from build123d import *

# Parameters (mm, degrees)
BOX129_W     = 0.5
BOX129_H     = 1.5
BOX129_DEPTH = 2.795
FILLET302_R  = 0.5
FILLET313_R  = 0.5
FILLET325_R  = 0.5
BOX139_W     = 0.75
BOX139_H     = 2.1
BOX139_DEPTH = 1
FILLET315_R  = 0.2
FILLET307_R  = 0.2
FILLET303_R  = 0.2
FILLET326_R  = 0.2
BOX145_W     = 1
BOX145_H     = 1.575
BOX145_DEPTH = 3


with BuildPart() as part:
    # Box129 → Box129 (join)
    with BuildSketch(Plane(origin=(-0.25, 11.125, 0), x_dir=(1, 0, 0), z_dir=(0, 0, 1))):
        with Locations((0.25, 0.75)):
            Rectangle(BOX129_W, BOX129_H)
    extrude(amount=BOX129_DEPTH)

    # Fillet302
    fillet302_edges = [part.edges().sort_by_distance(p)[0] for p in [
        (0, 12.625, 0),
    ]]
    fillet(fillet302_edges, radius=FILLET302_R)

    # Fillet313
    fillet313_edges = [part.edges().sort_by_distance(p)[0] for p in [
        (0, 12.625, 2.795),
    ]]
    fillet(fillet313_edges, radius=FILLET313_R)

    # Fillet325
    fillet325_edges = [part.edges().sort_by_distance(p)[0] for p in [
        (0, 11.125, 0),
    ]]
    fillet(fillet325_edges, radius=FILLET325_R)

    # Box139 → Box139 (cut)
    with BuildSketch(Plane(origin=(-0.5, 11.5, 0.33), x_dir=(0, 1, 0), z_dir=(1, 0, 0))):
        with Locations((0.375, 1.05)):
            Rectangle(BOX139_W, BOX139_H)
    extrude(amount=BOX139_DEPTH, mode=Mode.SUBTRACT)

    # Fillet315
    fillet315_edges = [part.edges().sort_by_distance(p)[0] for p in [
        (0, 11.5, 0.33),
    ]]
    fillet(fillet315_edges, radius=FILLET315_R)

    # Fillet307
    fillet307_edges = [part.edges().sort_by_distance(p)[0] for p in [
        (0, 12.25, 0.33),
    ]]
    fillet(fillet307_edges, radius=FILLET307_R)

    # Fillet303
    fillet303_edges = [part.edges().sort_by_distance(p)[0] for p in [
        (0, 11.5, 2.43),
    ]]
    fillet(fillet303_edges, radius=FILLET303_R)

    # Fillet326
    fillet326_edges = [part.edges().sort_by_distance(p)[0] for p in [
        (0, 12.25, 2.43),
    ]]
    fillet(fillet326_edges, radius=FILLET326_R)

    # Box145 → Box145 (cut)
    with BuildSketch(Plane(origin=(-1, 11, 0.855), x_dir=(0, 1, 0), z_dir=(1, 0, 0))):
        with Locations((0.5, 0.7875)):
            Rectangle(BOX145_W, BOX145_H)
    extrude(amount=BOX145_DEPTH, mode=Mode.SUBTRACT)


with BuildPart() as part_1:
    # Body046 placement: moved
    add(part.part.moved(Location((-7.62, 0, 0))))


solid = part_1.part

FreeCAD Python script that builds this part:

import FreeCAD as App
import Part
import Sketcher
from FreeCAD import Vector
Q = App.Units.Quantity


def edges_at(feature, points):
    """Names of the edges that pass closest to the given points."""
    edges = feature.Shape.Edges
    near = lambda p: min(range(len(edges)), key=lambda i: edges[i].distToShape(Part.Vertex(*p))[0])
    return sorted({f"Edge{near(p) + 1}" for p in points})

doc = App.newDocument("Part")
body = doc.addObject("PartDesign::Body", "Body")

# Sketch on XY plane
sketch1 = body.newObject("Sketcher::SketchObject", "Sketch")
sketch1.AttachmentSupport = (doc.getObject("XY_Plane"), [""])
sketch1.MapMode = "FlatFace"
sketch1.addGeometry([
    Part.LineSegment(Vector(-0.25, 12.625, 0), Vector(-0.25, 11.125, 0)),
    Part.LineSegment(Vector(-0.25, 11.125, 0), Vector(0.25, 11.125, 0)),
    Part.LineSegment(Vector(0.25, 11.125, 0), Vector(0.25, 12.625, 0)),
    Part.LineSegment(Vector(0.25, 12.625, 0), Vector(-0.25, 12.625, 0)),
], False)
sketch1.addConstraint([
    Sketcher.Constraint("Coincident", 0, 2, 1, 1),
    Sketcher.Constraint("Coincident", 1, 2, 2, 1),
    Sketcher.Constraint("Coincident", 2, 2, 3, 1),
    Sketcher.Constraint("Coincident", 3, 2, 0, 1),
    Sketcher.Constraint("Vertical", 0),
    Sketcher.Constraint("Horizontal", 1),
    Sketcher.Constraint("Vertical", 2),
    Sketcher.Constraint("Horizontal", 3),
    Sketcher.Constraint("DistanceX", 1, 1, 1, 2, Q("0.5 mm")),
    Sketcher.Constraint("DistanceY", 0, 2, 0, 1, Q("1.5 mm")),
    Sketcher.Constraint("DistanceX", 0, 2, -1, 1, Q("0.25 mm")),
    Sketcher.Constraint("DistanceY", -1, 1, 0, 2, Q("11.125 mm")),
])
pad1 = body.newObject("PartDesign::Pad", "Pad")
pad1.Profile = sketch1
pad1.Length = 2.795
doc.recompute()

fillet = body.newObject("PartDesign::Fillet", "Fillet")
fillet.Base = (pad1, edges_at(pad1, [(0, 12.625, 0)]))
fillet.Radius = 0.5
doc.recompute()

fillet2 = body.newObject("PartDesign::Fillet", "Fillet001")
fillet2.Base = (fillet, edges_at(fillet, [(0, 12.625, 2.795)]))
fillet2.Radius = 0.5
doc.recompute()

fillet3 = body.newObject("PartDesign::Fillet", "Fillet002")
fillet3.Base = (fillet2, edges_at(fillet2, [(0, 11.125, 0)]))
fillet3.Radius = 0.5

# Sketch on YZ plane
sketch2 = body.newObject("Sketcher::SketchObject", "Sketch001")
sketch2.AttachmentSupport = (doc.getObject("YZ_Plane"), [""])
sketch2.MapMode = "FlatFace"
sketch2.AttachmentOffset = App.Placement(Vector(0, 0, -0.5), App.Rotation())
sketch2.addGeometry([
    Part.LineSegment(Vector(11.5, 2.43, 0), Vector(11.5, 0.33, 0)),
    Part.LineSegment(Vector(11.5, 0.33, 0), Vector(12.25, 0.33, 0)),
    Part.LineSegment(Vector(12.25, 0.33, 0), Vector(12.25, 2.43, 0)),
    Part.LineSegment(Vector(12.25, 2.43, 0), Vector(11.5, 2.43, 0)),
], False)
sketch2.addConstraint([
    Sketcher.Constraint("Coincident", 0, 2, 1, 1),
    Sketcher.Constraint("Coincident", 1, 2, 2, 1),
    Sketcher.Constraint("Coincident", 2, 2, 3, 1),
    Sketcher.Constraint("Coincident", 3, 2, 0, 1),
    Sketcher.Constraint("Vertical", 0),
    Sketcher.Constraint("Horizontal", 1),
    Sketcher.Constraint("Vertical", 2),
    Sketcher.Constraint("Horizontal", 3),
    Sketcher.Constraint("DistanceY", 0, 2, 0, 1, Q("2.1 mm")),
    Sketcher.Constraint("DistanceX", 1, 1, 1, 2, Q("0.75 mm")),
    Sketcher.Constraint("DistanceX", -1, 1, 0, 2, Q("11.5 mm")),
    Sketcher.Constraint("DistanceY", -1, 1, 0, 2, Q("0.33 mm")),
])
pocket1 = body.newObject("PartDesign::Pocket", "Pocket")
pocket1.Profile = sketch2
pocket1.Length = 1
pocket1.Reversed = True
doc.recompute()

fillet4 = body.newObject("PartDesign::Fillet", "Fillet003")
fillet4.Base = (pocket1, edges_at(pocket1, [(0, 11.5, 0.33)]))
fillet4.Radius = 0.2
doc.recompute()

fillet5 = body.newObject("PartDesign::Fillet", "Fillet004")
fillet5.Base = (fillet4, edges_at(fillet4, [(0, 12.25, 0.33)]))
fillet5.Radius = 0.2
doc.recompute()

fillet6 = body.newObject("PartDesign::Fillet", "Fillet005")
fillet6.Base = (fillet5, edges_at(fillet5, [(0, 11.5, 2.43)]))
fillet6.Radius = 0.2
doc.recompute()

fillet7 = body.newObject("PartDesign::Fillet", "Fillet006")
fillet7.Base = (fillet6, edges_at(fillet6, [(0, 12.25, 2.43)]))
fillet7.Radius = 0.2

# Sketch on YZ plane
sketch3 = body.newObject("Sketcher::SketchObject", "Sketch002")
sketch3.AttachmentSupport = (doc.getObject("YZ_Plane"), [""])
sketch3.MapMode = "FlatFace"
sketch3.AttachmentOffset = App.Placement(Vector(0, 0, -1), App.Rotation())
sketch3.addGeometry([
    Part.LineSegment(Vector(11, 2.43, 0), Vector(11, 0.855, 0)),
    Part.LineSegment(Vector(11, 0.855, 0), Vector(12, 0.855, 0)),
    Part.LineSegment(Vector(12, 0.855, 0), Vector(12, 2.43, 0)),
    Part.LineSegment(Vector(12, 2.43, 0), Vector(11, 2.43, 0)),
], False)
sketch3.addConstraint([
    Sketcher.Constraint("Coincident", 0, 2, 1, 1),
    Sketcher.Constraint("Coincident", 1, 2, 2, 1),
    Sketcher.Constraint("Coincident", 2, 2, 3, 1),
    Sketcher.Constraint("Coincident", 3, 2, 0, 1),
    Sketcher.Constraint("Vertical", 0),
    Sketcher.Constraint("Horizontal", 1),
    Sketcher.Constraint("Vertical", 2),
    Sketcher.Constraint("Horizontal", 3),
    Sketcher.Constraint("DistanceX", 1, 1, 1, 2, Q("1 mm")),
    Sketcher.Constraint("DistanceX", -1, 1, 0, 2, Q("11 mm")),
    Sketcher.Constraint("DistanceY", 0, 2, 0, 1, Q("1.575 mm")),
    Sketcher.Constraint("DistanceY", -1, 1, 2, 2, Q("2.43 mm")),
])
pocket2 = body.newObject("PartDesign::Pocket", "Pocket001")
pocket2.Profile = sketch3
pocket2.Length = 3
pocket2.Reversed = True
body2 = doc.addObject("PartDesign::Body", "Body001")
doc.recompute()

body.Placement = App.Placement(Vector(-7.62, 0, 0), App.Rotation(Vector(0, 0, 1), 0))
boolean = body2.newObject("PartDesign::Boolean", "Boolean")
boolean.Type = "Fuse"
boolean.addObjects([body])

doc.recompute()
